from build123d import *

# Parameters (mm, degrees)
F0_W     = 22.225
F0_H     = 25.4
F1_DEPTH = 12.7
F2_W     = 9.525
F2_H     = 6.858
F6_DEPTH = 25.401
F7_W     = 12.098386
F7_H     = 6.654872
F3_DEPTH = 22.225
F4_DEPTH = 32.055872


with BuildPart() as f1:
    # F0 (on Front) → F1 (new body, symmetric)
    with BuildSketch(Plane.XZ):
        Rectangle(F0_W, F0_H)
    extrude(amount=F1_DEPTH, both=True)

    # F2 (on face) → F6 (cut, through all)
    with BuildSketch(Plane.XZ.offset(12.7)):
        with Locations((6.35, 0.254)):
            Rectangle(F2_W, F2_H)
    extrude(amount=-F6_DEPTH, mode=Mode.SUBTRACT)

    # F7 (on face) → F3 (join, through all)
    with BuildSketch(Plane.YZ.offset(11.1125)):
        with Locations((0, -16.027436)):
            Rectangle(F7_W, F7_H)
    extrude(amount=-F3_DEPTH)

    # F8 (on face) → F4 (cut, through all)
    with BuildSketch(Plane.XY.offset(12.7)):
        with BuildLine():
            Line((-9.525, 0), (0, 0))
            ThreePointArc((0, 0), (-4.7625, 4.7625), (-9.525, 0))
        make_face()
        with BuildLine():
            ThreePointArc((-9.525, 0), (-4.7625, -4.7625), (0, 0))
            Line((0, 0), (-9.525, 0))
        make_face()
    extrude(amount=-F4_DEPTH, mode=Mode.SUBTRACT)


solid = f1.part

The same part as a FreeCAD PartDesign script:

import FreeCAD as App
import Part
import Sketcher

V = App.Vector
Q = App.Units.Quantity

doc = App.newDocument("Part")
params = doc.addObject("Spreadsheet::Sheet", "Params")
for row, (alias, value) in enumerate([
    ("sketch1_height", "1 in"),
    ("sketch1_width", "0.875 in"),
    ("pad1_length", "1 in"),
    ("sketch2_height", "0.27 in"),
    ("sketch2_width", "0.375 in"),
    ("pad2_length", "0.875 in"),
    ("sketch4_diameter", "0.375 in"),
], start=1):
    params.set(f"A{row}", alias)
    params.set(f"B{row}", "=" + value)
    params.setAlias(f"B{row}", alias)

body = doc.addObject("PartDesign::Body", "Body")

# Sketch on XZ plane
sketch1 = body.newObject("Sketcher::SketchObject", "Sketch")
sketch1.AttachmentSupport = (doc.getObject("XZ_Plane"), [""])
sketch1.MapMode = "FlatFace"
sketch1.addGeometry(Part.LineSegment(V(-11.1125, 12.7, 0), V(-11.1125, -12.7, 0)), False)
sketch1.addGeometry(Part.LineSegment(V(-11.1125, -12.7, 0), V(11.1125, -12.7, 0)), False)
sketch1.addGeometry(Part.LineSegment(V(11.1125, -12.7, 0), V(11.1125, 12.7, 0)), False)
sketch1.addGeometry(Part.LineSegment(V(11.1125, 12.7, 0), V(-11.1125, 12.7, 0)), False)
sketch1.addConstraint(Sketcher.Constraint("Coincident", 0, 2, 1, 1))
sketch1.addConstraint(Sketcher.Constraint("Coincident", 1, 2, 2, 1))
sketch1.addConstraint(Sketcher.Constraint("Coincident", 2, 2, 3, 1))
sketch1.addConstraint(Sketcher.Constraint("Coincident", 3, 2, 0, 1))
sketch1.addConstraint(Sketcher.Constraint("Vertical", 0))
sketch1.addConstraint(Sketcher.Constraint("Horizontal", 1))
sketch1.addConstraint(Sketcher.Constraint("Vertical", 2))
sketch1.addConstraint(Sketcher.Constraint("Horizontal", 3))
sketch1.addConstraint(Sketcher.Constraint("Symmetric", 0, 2, 2, 2, -1, 1))
sketch1.addConstraint(Sketcher.Constraint("DistanceY", 0, 2, 0, 1, Q("1 in")))
sketch1.addConstraint(Sketcher.Constraint("DistanceX", 1, 1, 1, 2, Q("0.875 in")))
sketch1.setExpression("Constraints[9]", "Params.sketch1_height")
sketch1.setExpression("Constraints[10]", "Params.sketch1_width")
pad1 = body.newObject("PartDesign::Pad", "Pad")
pad1.Profile = sketch1
pad1.setExpression("Length", "Params.pad1_length")
pad1.Midplane = True

# Sketch on XZ plane
sketch2 = body.newObject("Sketcher::SketchObject", "Sketch001")
sketch2.AttachmentSupport = (doc.getObject("XZ_Plane"), [""])
sketch2.MapMode = "FlatFace"
sketch2.AttachmentOffset = App.Placement(V(0, 0, 0.5 * 25.4), App.Rotation())
sketch2.addGeometry(Part.LineSegment(V(1.5875, 3.683, 0), V(1.5875, -3.175, 0)), False)
sketch2.addGeometry(Part.LineSegment(V(1.5875, -3.175, 0), V(11.1125, -3.175, 0)), False)
sketch2.addGeometry(Part.LineSegment(V(11.1125, -3.175, 0), V(11.1125, 3.683, 0)), False)
sketch2.addGeometry(Part.LineSegment(V(11.1125, 3.683, 0), V(1.5875, 3.683, 0)), False)
sketch2.addConstraint(Sketcher.Constraint("Coincident", 0, 2, 1, 1))
sketch2.addConstraint(Sketcher.Constraint("Coincident", 1, 2, 2, 1))
sketch2.addConstraint(Sketcher.Constraint("Coincident", 2, 2, 3, 1))
sketch2.addConstraint(Sketcher.Constraint("Coincident", 3, 2, 0, 1))
sketch2.addConstraint(Sketcher.Constraint("Vertical", 0))
sketch2.addConstraint(Sketcher.Constraint("Horizontal", 1))
sketch2.addConstraint(Sketcher.Constraint("Vertical", 2))
sketch2.addConstraint(Sketcher.Constraint("Horizontal", 3))
sketch2.addConstraint(Sketcher.Constraint("DistanceY", 0, 2, 0, 1, Q("0.27 in")))
sketch2.addConstraint(Sketcher.Constraint("DistanceX", 1, 1, 1, 2, Q("0.375 in")))
sketch2.addConstraint(Sketcher.Constraint("DistanceX", -1, 1, 0, 2, Q("0.0625 in")))
sketch2.addConstraint(Sketcher.Constraint("DistanceY", 0, 2, -1, 1, Q("0.125 in")))
sketch2.setExpression("Constraints[8]", "Params.sketch2_height")
sketch2.setExpression("Constraints[9]", "Params.sketch2_width")
pocket1 = body.newObject("PartDesign::Pocket", "Pocket")
pocket1.Profile = sketch2
pocket1.Type = "ThroughAll"

# Sketch on YZ plane
sketch3 = body.newObject("Sketcher::SketchObject", "Sketch002")
sketch3.AttachmentSupport = (doc.getObject("YZ_Plane"), [""])
sketch3.MapMode = "FlatFace"
sketch3.AttachmentOffset = App.Placement(V(0, 0, 0.4375 * 25.4), App.Rotation())
sketch3.addGeometry(Part.LineSegment(V(-6.049193, -12.7, 0), V(-6.049193, -19.354872, 0)), False)
sketch3.addGeometry(Part.LineSegment(V(-6.049193, -19.354872, 0), V(6.049193, -19.354872, 0)), False)
sketch3.addGeometry(Part.LineSegment(V(6.049193, -19.354872, 0), V(6.049193, -12.7, 0)), False)
sketch3.addGeometry(Part.LineSegment(V(6.049193, -12.7, 0), V(-6.049193, -12.7, 0)), False)
sketch3.addConstraint(Sketcher.Constraint("Coincident", 0, 2, 1, 1))
sketch3.addConstraint(Sketcher.Constraint("Coincident", 1, 2, 2, 1))
sketch3.addConstraint(Sketcher.Constraint("Coincident", 2, 2, 3, 1))
sketch3.addConstraint(Sketcher.Constraint("Coincident", 3, 2, 0, 1))
sketch3.addConstraint(Sketcher.Constraint("Vertical", 0))
sketch3.addConstraint(Sketcher.Constraint("Horizontal", 1))
sketch3.addConstraint(Sketcher.Constraint("Vertical", 2))
sketch3.addConstraint(Sketcher.Constraint("Horizontal", 3))
sketch3.addConstraint(Sketcher.Constraint("DistanceY", 2, 2, -1, 1, Q("0.5 in")))
sketch3.addConstraint(Sketcher.Constraint("DistanceX", 1, 1, 1, 2, Q("12.098386 mm")))
sketch3.addConstraint(Sketcher.Constraint("DistanceY", 0, 2, 0, 1, Q("6.654872 mm")))
sketch3.addConstraint(Sketcher.Constraint("DistanceX", 0, 2, -1, 1, Q("6.049193 mm")))
pad2 = body.newObject("PartDesign::Pad", "Pad001")
pad2.Profile = sketch3
pad2.setExpression("Length", "Params.pad2_length")
pad2.Reversed = True

# Sketch on XY plane
sketch4 = body.newObject("Sketcher::SketchObject", "Sketch003")
sketch4.AttachmentSupport = (doc.getObject("XY_Plane"), [""])
sketch4.MapMode = "FlatFace"
sketch4.AttachmentOffset = App.Placement(V(0, 0, 0.5 * 25.4), App.Rotation())
sketch4.addGeometry(Part.Circle(V(-4.7625, 0, 0), V(0, 0, 1), 4.7625), False)
sketch4.addConstraint(Sketcher.Constraint("PointOnObject", 0, 3, -1))
sketch4.addConstraint(Sketcher.Constraint("Diameter", 0, Q("0.375 in")))
sketch4.addConstraint(Sketcher.Constraint("DistanceX", 0, 3, -1, 1, Q("0.1875 in")))
sketch4.setExpression("Constraints[1]", "Params.sketch4_diameter")
pocket2 = body.newObject("PartDesign::Pocket", "Pocket001")
pocket2.Profile = sketch4
pocket2.Type = "ThroughAll"

doc.recompute()
